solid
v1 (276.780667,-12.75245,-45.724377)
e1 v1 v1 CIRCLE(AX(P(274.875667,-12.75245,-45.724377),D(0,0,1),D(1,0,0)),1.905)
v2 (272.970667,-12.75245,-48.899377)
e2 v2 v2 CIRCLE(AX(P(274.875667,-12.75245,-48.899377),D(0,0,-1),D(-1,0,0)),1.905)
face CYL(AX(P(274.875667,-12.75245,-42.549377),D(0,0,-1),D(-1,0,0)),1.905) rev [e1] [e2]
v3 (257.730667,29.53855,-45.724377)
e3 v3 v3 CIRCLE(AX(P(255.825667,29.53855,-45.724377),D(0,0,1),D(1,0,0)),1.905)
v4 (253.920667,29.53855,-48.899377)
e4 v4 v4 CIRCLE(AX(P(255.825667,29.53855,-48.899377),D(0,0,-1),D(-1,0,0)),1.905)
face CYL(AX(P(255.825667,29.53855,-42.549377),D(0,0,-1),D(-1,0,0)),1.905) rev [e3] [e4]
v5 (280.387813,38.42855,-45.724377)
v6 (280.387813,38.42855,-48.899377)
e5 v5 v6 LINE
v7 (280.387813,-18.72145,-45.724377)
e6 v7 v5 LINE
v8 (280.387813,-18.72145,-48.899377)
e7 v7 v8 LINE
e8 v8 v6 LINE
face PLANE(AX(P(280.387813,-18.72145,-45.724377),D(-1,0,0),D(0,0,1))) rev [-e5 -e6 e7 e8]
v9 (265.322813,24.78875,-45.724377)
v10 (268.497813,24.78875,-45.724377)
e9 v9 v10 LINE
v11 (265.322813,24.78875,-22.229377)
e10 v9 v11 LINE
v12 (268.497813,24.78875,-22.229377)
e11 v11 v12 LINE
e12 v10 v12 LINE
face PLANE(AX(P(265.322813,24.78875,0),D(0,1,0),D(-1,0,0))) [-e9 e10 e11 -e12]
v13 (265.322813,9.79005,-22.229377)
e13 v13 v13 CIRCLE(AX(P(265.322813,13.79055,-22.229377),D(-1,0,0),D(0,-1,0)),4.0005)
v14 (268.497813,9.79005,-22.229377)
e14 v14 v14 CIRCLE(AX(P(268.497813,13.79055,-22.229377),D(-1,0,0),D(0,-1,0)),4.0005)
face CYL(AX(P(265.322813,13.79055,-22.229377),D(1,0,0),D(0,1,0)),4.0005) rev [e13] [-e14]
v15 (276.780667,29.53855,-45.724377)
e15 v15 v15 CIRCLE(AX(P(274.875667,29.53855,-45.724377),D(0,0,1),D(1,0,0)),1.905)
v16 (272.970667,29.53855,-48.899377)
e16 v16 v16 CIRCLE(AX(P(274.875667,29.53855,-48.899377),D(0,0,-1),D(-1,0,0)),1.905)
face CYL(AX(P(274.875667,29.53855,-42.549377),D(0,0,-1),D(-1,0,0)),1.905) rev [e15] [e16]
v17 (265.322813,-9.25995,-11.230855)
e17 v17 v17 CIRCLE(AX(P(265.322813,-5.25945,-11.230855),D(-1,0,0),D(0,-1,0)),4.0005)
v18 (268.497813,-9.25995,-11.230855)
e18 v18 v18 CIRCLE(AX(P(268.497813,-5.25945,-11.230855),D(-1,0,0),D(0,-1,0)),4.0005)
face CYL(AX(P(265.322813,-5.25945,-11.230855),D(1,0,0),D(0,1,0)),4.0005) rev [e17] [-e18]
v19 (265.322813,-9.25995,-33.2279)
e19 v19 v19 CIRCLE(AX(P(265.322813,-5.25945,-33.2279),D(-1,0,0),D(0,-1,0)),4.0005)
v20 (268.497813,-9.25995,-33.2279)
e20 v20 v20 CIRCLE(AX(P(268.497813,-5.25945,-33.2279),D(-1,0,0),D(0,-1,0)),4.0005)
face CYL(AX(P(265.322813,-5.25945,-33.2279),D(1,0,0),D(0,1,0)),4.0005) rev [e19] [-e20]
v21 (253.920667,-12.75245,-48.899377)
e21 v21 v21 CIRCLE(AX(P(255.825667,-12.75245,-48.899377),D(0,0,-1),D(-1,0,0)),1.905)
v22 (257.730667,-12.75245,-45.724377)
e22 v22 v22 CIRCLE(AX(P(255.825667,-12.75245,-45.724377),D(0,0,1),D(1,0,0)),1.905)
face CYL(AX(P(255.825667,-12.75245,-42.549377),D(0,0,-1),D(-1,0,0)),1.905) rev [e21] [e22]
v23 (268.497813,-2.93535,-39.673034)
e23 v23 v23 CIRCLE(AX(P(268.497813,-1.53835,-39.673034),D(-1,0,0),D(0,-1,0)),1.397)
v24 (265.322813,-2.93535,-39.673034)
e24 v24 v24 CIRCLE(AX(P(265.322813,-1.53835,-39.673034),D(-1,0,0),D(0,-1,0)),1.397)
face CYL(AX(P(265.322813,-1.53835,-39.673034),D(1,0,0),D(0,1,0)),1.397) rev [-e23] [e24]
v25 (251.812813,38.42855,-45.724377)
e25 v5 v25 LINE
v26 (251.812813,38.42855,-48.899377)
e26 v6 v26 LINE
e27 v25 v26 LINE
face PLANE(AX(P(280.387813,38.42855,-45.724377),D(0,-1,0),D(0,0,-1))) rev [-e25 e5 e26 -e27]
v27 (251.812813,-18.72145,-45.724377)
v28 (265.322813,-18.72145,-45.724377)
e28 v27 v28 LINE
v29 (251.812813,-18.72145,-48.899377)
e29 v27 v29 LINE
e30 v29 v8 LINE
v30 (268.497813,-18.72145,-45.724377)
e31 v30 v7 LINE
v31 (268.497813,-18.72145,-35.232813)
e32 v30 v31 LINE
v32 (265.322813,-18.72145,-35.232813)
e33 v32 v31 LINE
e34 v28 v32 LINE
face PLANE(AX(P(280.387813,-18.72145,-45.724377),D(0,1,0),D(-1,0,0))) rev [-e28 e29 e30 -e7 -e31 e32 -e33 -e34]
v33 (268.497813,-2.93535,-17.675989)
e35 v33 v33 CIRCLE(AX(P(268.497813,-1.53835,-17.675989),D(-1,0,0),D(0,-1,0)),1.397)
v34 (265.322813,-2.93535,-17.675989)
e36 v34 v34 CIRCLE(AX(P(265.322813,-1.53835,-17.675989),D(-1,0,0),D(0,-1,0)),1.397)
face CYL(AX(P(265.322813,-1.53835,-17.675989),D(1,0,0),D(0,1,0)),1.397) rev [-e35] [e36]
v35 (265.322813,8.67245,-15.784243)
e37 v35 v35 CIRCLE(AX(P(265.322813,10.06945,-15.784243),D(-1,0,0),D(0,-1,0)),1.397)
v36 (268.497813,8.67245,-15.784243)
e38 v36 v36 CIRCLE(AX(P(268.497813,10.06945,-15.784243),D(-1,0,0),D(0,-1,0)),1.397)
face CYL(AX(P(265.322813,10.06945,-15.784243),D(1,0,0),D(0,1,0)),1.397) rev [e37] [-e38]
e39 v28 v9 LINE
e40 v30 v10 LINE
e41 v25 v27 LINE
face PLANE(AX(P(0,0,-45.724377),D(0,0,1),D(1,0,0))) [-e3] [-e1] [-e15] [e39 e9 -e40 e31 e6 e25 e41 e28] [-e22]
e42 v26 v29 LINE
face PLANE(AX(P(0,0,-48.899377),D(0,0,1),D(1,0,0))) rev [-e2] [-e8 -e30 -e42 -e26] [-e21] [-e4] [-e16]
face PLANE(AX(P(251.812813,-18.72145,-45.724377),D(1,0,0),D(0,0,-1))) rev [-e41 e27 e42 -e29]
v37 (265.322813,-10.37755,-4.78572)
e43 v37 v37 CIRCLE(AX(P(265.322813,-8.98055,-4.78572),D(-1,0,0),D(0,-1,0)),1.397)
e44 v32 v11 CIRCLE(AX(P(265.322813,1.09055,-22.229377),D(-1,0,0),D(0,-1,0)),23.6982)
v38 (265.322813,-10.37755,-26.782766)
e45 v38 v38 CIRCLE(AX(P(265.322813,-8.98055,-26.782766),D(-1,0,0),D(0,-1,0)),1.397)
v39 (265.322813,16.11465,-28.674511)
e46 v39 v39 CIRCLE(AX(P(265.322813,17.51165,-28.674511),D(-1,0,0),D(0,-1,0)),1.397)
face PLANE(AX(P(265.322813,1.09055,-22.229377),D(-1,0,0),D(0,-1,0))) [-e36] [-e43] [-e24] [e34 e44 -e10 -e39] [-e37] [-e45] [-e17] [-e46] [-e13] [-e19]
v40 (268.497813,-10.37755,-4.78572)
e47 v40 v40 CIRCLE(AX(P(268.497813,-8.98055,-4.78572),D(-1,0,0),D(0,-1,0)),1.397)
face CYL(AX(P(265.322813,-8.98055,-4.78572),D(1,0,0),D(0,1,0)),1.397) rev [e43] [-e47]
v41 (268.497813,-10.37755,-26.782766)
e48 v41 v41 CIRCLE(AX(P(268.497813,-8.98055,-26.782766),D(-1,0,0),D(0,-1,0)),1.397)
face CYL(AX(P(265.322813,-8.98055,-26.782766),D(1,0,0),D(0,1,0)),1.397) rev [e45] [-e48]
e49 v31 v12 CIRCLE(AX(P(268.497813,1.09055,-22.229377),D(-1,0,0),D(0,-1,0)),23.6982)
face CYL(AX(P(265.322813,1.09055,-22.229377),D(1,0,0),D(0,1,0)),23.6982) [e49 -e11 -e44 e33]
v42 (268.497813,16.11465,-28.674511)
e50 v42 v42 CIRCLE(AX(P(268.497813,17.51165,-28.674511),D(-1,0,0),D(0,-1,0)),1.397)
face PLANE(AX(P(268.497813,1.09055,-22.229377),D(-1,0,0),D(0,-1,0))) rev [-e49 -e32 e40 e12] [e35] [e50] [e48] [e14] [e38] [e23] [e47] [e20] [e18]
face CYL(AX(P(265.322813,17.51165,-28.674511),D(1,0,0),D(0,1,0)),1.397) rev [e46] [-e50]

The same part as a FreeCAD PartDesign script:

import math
import FreeCAD as App
import Part
import Sketcher

V = App.Vector
Q = App.Units.Quantity

doc = App.newDocument("Part")
body = doc.addObject("PartDesign::Body", "Body")

# Sketch on YZ plane
sketch1 = body.newObject("Sketcher::SketchObject", "Sketch")
sketch1.AttachmentSupport = (doc.getObject("YZ_Plane"), [""])
sketch1.MapMode = "FlatFace"
sketch1.AttachmentOffset = App.Placement(V(0, 0, 268.497813), App.Rotation())
sketch1.addGeometry([
    Part.Circle(V(1.1, -22.2, 0), V(0, 0, 1), 23.7),  # 0
    Part.Circle(V(17.5, -28.7, 0), V(0, 0, 1), 1.4),  # 1
    Part.Circle(V(-1.5, -39.7, 0), V(0, 0, 1), 1.4),  # 2
    Part.Circle(V(-5.3, -33.2, 0), V(0, 0, 1), 4),  # 3
    Part.Circle(V(-9, -26.8, 0), V(0, 0, 1), 1.4),  # 4
    Part.Circle(V(13.8, -22.2, 0), V(0, 0, 1), 4),  # 5
    Part.Circle(V(10.1, -15.8, 0), V(0, 0, 1), 1.4),  # 6
    Part.Circle(V(-1.5, -17.7, 0), V(0, 0, 1), 1.4),  # 7
    Part.Circle(V(-5.3, -11.2, 0), V(0, 0, 1), 4),  # 8
    Part.Circle(V(-9, -4.8, 0), V(0, 0, 1), 1.4),  # 9
], False)
sketch1.addConstraint([
    Sketcher.Constraint("Equal", 1, 2),
    Sketcher.Constraint("Equal", 2, 4),
    Sketcher.Constraint("Equal", 3, 5),
    Sketcher.Constraint("Equal", 4, 6),
    Sketcher.Constraint("Equal", 6, 7),
    Sketcher.Constraint("Equal", 5, 8),
    Sketcher.Constraint("Equal", 7, 9),
    Sketcher.Constraint("Horizontal", 0, 3, 5, 3),
    Sketcher.Constraint("Vertical", 2, 3, 7, 3),
    Sketcher.Constraint("Vertical", 3, 3, 8, 3),
    Sketcher.Constraint("Vertical", 4, 3, 9, 3),
    Sketcher.Constraint("Diameter", 1, Q("0.11 in")),
    Sketcher.Constraint("Diameter", 0, Q("1.866 in")),
    Sketcher.Constraint("Diameter", 3, Q("0.315 in")),
    Sketcher.Constraint("DistanceX", 0, 3, 5, 3, Q("0.5 in")),
    Sketcher.Constraint("DistanceX", 2, 3, 1, 3, Q("0.75 in")),
    Sketcher.Constraint("DistanceX", 3, 3, 0, 3, Q("0.25 in")),
    Sketcher.Constraint("DistanceX", 4, 3, 6, 3, Q("0.75 in")),
    Sketcher.Constraint("DistanceX", 4, 3, 2, 3, Q("0.293 in")),
    Sketcher.Constraint("DistanceX", 0, 3, 1, 3, Q("0.6465 in")),
    Sketcher.Constraint("DistanceY", 3, 3, -1, 1, Q("33.2279 mm")),
    Sketcher.Constraint("DistanceX", -1, 1, 0, 3, Q("1.09055 mm")),
    Sketcher.Constraint("DistanceY", 1, 3, -1, 1, Q("28.674511 mm")),
    Sketcher.Constraint("DistanceY", 7, 3, -1, 1, Q("17.675989 mm")),
    Sketcher.Constraint("DistanceY", 9, 3, -1, 1, Q("4.78572 mm")),
    Sketcher.Constraint("DistanceY", 4, 3, 0, 3, Q("4.553388 mm")),
    Sketcher.Constraint("DistanceY", 2, 3, 4, 3, Q("12.890269 mm")),
    Sketcher.Constraint("DistanceY", 1, 3, 6, 3, Q("12.890269 mm")),
    Sketcher.Constraint("DistanceY", 0, 3, 7, 3, Q("4.553388 mm")),
    Sketcher.Constraint("DistanceY", 4, 3, 8, 3, Q("15.551911 mm")),
])
pad1 = body.newObject("PartDesign::Pad", "Pad")
pad1.Profile = sketch1
pad1.Length = Q("0.125 in")
pad1.Reversed = True

# Sketch on XY plane
sketch2 = body.newObject("Sketcher::SketchObject", "Sketch001")
sketch2.AttachmentSupport = (doc.getObject("XY_Plane"), [""])
sketch2.MapMode = "FlatFace"
sketch2.AttachmentOffset = App.Placement(V(0, 0, -48.899377), App.Rotation())
sketch2.addGeometry([
    Part.LineSegment(V(252, 38, 0), V(252, -19, 0)),
    Part.LineSegment(V(252, -19, 0), V(280, -19, 0)),
    Part.LineSegment(V(280, -19, 0), V(280, 38, 0)),
    Part.LineSegment(V(280, 38, 0), V(252, 38, 0)),
], False)
sketch2.addConstraint([
    Sketcher.Constraint("Coincident", 0, 2, 1, 1),
    Sketcher.Constraint("Coincident", 1, 2, 2, 1),
    Sketcher.Constraint("Coincident", 2, 2, 3, 1),
    Sketcher.Constraint("Coincident", 3, 2, 0, 1),
    Sketcher.Constraint("Vertical", 0),
    Sketcher.Constraint("Horizontal", 1),
    Sketcher.Constraint("Vertical", 2),
    Sketcher.Constraint("Horizontal", 3),
    Sketcher.Constraint("DistanceY", 0, 2, 0, 1, Q("2.25 in")),
    Sketcher.Constraint("DistanceX", 1, 1, 1, 2, Q("1.125 in")),
    Sketcher.Constraint("DistanceY", 0, 2, -1, 1, Q("18.72145 mm")),
    Sketcher.Constraint("DistanceX", -1, 1, 0, 2, Q("251.812813 mm")),
])
pad2 = body.newObject("PartDesign::Pad", "Pad001")
pad2.Profile = sketch2
pad2.Length = Q("0.125 in")

# Sketch on YZ plane
sketch3 = body.newObject("Sketcher::SketchObject", "Sketch002")
sketch3.AttachmentSupport = (doc.getObject("YZ_Plane"), [""])
sketch3.MapMode = "FlatFace"
sketch3.AttachmentOffset = App.Placement(V(0, 0, 268.497813), App.Rotation())
sketch3.addGeometry([
    Part.LineSegment(V(-19, -46, 0), V(-2, -46, 0)),  # 0
    Part.ArcOfCircle(Part.Circle(V(1, -22, 0), V(0, 0, 1), 24), math.radians(-147), math.radians(-98)),  # 1
    Part.LineSegment(V(-19, -35, 0), V(-19, -46, 0)),  # 2
    Part.LineSegment(V(25, -46, 0), V(25, -22, 0)),  # 3
    Part.ArcOfCircle(Part.Circle(V(1, -22, 0), V(0, 0, 1), 24), math.radians(-82), math.radians(0)),  # 4
    Part.LineSegment(V(4, -46, 0), V(25, -46, 0)),  # 5
], False)
sketch3.addConstraint([
    Sketcher.Constraint("Coincident", 0, 2, 1, 2),
    Sketcher.Constraint("Coincident", 1, 1, 2, 1),
    Sketcher.Constraint("Coincident", 2, 2, 0, 1),
    Sketcher.Constraint("Tangent", 3, 2, 4, 2),
    Sketcher.Constraint("Coincident", 4, 1, 5, 1),
    Sketcher.Constraint("Coincident", 5, 2, 3, 1),
    Sketcher.Constraint("Horizontal", 0),
    Sketcher.Constraint("Vertical", 2),
    Sketcher.Constraint("Vertical", 3),
    Sketcher.Constraint("Horizontal", 5),
    Sketcher.Constraint("Coincident", 4, 3, 1, 3),
    Sketcher.Constraint("Equal", 1, 4),
    Sketcher.Constraint("Horizontal", 2, 2, 4, 1),
    Sketcher.Constraint("Radius", 1, Q("0.933 in")),
    Sketcher.Constraint("DistanceY", 3, 1, 3, 2, Q("0.925 in")),
    Sketcher.Constraint("DistanceX", 1, 1, 1, 3, Q("0.78 in")),
    Sketcher.Constraint("DistanceX", -1, 1, 1, 3, Q("1.09055 mm")),
    Sketcher.Constraint("DistanceY", 1, 3, -1, 1, Q("22.229377 mm")),
])
pad3 = body.newObject("PartDesign::Pad", "Pad002")
pad3.Profile = sketch3
pad3.Length = Q("0.125 in")
pad3.Reversed = True

# Sketch on XY plane
sketch4 = body.newObject("Sketcher::SketchObject", "Sketch003")
sketch4.AttachmentSupport = (doc.getObject("XY_Plane"), [""])
sketch4.MapMode = "FlatFace"
sketch4.AttachmentOffset = App.Placement(V(0, 0, -48.899377), App.Rotation())
sketch4.addGeometry([
    Part.Circle(V(274.9, -12.8, 0), V(0, 0, 1), 1.9),
    Part.Circle(V(274.9, 29.5, 0), V(0, 0, 1), 1.9),
    Part.Circle(V(255.8, 29.5, 0), V(0, 0, 1), 1.9),
    Part.Circle(V(255.8, -12.8, 0), V(0, 0, 1), 1.9),
], False)
sketch4.addConstraint([
    Sketcher.Constraint("Equal", 0, 1),
    Sketcher.Constraint("Equal", 1, 2),
    Sketcher.Constraint("Equal", 2, 3),
    Sketcher.Constraint("Horizontal", 1, 3, 2, 3),
    Sketcher.Constraint("Horizontal", 0, 3, 3, 3),
    Sketcher.Constraint("Vertical", 0, 3, 1, 3),
    Sketcher.Constraint("Vertical", 2, 3, 3, 3),
    Sketcher.Constraint("Diameter", 0, Q("0.15 in")),
    Sketcher.Constraint("DistanceX", 2, 3, 1, 3, Q("0.75 in")),
    Sketcher.Constraint("DistanceY", 0, 3, 1, 3, Q("1.665 in")),
    Sketcher.Constraint("DistanceY", 0, 3, -1, 1, Q("12.75245 mm")),
    Sketcher.Constraint("DistanceX", -1, 1, 0, 3, Q("274.875667 mm")),
])
pocket1 = body.newObject("PartDesign::Pocket", "Pocket")
pocket1.Profile = sketch4
pocket1.Length = Q("0.25 in")
pocket1.Reversed = True

doc.recompute()
